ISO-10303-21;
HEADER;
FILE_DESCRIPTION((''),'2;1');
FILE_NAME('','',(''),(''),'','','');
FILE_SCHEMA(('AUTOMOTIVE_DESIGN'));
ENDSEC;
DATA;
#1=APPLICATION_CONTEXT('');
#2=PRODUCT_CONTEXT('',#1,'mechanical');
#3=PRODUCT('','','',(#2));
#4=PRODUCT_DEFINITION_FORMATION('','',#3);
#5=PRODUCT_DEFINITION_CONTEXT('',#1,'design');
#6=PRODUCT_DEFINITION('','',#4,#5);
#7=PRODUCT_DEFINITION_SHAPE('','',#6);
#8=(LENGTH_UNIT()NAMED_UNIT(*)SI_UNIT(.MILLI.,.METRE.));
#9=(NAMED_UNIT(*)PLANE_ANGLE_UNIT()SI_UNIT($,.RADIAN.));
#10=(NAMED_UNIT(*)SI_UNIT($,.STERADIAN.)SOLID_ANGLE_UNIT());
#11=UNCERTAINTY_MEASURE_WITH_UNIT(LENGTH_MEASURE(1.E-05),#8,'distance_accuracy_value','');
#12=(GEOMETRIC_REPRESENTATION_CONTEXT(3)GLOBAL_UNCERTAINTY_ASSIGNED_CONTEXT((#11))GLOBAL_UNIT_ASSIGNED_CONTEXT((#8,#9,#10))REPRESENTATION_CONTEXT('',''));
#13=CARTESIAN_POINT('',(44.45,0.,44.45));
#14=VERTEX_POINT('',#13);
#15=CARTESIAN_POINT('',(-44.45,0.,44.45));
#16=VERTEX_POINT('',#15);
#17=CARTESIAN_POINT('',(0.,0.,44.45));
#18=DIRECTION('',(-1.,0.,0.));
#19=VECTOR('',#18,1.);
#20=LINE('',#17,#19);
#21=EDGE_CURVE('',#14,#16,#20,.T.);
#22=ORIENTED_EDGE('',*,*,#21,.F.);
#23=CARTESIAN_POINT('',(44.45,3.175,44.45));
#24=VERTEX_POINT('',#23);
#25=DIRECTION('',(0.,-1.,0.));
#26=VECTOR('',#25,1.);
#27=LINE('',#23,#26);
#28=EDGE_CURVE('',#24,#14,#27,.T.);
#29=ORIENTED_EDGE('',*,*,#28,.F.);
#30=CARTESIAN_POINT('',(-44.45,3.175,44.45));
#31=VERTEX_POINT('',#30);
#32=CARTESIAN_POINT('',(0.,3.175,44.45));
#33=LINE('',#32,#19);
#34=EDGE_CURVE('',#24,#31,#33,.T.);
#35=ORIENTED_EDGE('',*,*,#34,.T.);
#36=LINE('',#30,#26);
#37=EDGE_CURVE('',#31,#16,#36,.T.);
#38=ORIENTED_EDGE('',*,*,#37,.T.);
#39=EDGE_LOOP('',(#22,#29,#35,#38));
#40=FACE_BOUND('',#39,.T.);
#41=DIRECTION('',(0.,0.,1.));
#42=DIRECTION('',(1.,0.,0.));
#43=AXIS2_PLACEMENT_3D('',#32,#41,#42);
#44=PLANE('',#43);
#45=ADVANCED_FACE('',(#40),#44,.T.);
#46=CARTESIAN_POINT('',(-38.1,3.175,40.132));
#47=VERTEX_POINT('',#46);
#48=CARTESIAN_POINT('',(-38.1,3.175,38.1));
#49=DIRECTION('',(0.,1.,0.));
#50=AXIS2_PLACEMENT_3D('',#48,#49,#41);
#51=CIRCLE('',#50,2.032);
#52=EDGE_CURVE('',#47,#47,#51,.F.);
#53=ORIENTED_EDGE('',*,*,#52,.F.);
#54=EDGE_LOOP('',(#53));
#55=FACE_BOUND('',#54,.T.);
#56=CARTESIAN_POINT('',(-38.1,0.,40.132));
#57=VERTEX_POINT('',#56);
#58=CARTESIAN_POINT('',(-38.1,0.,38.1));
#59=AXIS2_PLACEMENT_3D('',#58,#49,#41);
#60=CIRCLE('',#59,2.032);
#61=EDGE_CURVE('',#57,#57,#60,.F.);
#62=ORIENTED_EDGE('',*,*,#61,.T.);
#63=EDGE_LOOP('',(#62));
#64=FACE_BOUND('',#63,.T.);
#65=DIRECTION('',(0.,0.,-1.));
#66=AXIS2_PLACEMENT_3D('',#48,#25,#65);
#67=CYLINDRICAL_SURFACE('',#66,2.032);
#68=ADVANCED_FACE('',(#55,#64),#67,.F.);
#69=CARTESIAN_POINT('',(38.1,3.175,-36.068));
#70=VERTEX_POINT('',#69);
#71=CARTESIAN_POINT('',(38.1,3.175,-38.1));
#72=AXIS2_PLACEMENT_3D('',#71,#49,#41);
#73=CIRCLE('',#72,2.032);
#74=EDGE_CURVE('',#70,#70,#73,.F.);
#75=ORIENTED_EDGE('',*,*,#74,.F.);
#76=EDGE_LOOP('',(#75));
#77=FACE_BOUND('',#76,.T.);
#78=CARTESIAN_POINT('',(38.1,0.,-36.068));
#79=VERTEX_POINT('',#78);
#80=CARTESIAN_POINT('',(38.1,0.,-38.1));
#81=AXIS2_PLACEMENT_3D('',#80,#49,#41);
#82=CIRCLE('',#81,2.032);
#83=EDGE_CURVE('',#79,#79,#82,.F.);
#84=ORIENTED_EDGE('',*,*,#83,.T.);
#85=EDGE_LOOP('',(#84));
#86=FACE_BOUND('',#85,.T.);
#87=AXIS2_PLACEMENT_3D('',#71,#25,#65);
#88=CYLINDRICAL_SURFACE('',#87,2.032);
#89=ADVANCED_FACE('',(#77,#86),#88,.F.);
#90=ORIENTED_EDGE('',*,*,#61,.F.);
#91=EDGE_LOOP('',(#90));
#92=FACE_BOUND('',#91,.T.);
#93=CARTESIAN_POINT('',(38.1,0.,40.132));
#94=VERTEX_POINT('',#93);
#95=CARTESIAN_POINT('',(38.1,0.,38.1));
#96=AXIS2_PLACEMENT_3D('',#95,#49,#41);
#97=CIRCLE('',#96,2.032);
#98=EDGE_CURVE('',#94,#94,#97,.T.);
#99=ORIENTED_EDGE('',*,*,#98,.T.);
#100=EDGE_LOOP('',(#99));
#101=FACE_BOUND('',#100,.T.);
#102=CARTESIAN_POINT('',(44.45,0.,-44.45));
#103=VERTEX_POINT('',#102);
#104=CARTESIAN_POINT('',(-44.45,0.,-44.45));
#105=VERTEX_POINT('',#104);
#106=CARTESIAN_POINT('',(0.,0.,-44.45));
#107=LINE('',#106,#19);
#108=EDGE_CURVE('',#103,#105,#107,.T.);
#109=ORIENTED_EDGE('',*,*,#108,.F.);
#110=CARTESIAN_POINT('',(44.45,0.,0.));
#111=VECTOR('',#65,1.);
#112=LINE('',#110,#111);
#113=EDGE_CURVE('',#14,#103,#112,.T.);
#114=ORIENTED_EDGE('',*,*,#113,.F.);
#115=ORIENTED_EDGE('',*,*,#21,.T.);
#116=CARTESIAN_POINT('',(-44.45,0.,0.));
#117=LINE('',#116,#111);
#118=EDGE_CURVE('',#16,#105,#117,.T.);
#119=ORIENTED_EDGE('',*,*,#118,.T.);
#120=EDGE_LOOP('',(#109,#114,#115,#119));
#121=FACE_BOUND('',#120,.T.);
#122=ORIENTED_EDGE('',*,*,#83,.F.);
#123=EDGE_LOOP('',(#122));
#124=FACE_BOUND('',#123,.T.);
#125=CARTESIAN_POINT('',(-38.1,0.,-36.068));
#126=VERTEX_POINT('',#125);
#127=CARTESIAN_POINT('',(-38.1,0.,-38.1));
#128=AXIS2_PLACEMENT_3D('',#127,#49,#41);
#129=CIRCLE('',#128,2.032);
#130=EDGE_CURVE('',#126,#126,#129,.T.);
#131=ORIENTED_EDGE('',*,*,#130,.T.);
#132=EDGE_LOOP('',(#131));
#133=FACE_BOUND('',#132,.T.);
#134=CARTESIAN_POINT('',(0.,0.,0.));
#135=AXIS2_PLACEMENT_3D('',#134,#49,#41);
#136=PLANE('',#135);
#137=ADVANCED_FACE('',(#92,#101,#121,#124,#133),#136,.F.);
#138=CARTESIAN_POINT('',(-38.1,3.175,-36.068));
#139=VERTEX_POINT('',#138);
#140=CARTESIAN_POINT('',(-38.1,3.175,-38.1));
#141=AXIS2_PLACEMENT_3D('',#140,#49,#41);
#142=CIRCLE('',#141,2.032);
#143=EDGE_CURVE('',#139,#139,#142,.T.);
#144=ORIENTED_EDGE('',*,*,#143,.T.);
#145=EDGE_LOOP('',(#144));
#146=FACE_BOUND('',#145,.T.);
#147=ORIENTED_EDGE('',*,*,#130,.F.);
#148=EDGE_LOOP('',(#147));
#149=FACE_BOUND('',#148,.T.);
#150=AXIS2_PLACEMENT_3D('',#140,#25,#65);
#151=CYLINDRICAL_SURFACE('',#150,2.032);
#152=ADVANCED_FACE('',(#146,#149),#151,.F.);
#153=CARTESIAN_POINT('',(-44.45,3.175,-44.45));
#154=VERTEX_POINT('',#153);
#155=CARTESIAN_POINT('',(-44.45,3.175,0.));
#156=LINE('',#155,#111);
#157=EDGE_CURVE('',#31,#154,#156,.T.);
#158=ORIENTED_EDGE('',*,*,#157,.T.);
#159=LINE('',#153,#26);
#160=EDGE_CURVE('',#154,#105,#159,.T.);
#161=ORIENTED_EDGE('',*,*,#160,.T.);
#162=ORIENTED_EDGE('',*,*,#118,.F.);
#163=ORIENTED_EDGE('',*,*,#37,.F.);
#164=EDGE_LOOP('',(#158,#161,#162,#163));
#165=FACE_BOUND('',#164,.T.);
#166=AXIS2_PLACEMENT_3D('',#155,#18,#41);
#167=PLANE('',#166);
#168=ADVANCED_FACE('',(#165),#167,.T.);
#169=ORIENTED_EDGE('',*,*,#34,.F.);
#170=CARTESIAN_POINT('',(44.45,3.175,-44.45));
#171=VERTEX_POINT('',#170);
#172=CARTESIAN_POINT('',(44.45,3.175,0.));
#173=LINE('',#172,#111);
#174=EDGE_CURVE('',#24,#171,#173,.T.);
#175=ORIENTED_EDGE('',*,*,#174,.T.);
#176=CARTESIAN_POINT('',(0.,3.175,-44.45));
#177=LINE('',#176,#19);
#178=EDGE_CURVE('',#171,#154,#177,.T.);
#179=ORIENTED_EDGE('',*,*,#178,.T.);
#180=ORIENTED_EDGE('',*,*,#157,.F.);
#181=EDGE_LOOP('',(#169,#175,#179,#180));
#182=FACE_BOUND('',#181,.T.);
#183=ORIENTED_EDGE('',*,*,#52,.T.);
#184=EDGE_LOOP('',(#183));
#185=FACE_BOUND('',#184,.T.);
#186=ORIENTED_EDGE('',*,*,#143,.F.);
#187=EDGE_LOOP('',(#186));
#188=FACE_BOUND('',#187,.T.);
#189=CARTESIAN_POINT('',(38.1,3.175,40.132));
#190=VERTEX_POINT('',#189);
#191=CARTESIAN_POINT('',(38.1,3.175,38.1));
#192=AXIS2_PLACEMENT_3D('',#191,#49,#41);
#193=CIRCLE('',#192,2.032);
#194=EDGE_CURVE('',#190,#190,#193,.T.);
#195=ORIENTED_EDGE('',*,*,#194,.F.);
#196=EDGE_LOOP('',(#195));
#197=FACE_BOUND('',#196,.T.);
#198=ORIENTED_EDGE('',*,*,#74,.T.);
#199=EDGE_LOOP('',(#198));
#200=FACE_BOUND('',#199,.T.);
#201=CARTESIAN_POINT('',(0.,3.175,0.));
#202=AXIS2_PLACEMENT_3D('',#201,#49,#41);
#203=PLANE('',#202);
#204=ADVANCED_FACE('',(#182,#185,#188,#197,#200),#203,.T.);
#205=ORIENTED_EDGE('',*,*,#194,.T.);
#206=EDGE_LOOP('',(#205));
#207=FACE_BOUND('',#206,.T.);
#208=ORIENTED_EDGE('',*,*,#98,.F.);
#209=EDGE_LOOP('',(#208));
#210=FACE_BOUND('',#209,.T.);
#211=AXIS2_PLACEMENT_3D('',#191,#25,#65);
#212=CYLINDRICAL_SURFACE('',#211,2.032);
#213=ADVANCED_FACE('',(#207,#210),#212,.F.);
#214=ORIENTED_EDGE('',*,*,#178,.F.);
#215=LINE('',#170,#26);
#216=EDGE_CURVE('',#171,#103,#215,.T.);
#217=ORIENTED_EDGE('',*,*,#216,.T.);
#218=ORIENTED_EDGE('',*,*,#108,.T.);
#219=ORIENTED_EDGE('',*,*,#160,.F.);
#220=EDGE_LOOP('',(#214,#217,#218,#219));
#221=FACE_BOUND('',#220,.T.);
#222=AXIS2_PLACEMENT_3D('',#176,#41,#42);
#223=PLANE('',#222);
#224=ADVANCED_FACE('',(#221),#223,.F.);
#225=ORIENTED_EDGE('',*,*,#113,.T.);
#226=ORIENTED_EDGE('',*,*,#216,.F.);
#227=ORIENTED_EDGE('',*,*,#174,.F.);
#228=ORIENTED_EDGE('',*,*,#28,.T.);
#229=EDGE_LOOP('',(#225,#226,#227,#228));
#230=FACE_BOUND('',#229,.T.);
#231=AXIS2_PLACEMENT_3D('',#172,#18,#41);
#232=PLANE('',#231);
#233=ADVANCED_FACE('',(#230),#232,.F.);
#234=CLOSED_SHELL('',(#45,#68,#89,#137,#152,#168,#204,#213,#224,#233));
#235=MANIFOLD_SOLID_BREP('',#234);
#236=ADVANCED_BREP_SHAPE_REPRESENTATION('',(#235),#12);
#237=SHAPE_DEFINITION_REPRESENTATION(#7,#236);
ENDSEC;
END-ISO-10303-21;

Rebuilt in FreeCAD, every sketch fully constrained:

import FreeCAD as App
import Part
import Sketcher

V = App.Vector
Q = App.Units.Quantity

doc = App.newDocument("Part")
body = doc.addObject("PartDesign::Body", "Body")

sketch1 = body.newObject("Sketcher::SketchObject", "Sketch")
sketch1.AttachmentSupport = (doc.getObject("XZ_Plane"), [""])
sketch1.MapMode = "FlatFace"
sketch1.addGeometry([
    Part.LineSegment(V(-44.5, -44.5, 0), V(-44.5, 44.5, 0)),
    Part.LineSegment(V(-44.5, 44.5, 0), V(44.5, 44.5, 0)),
    Part.LineSegment(V(44.5, 44.5, 0), V(44.5, -44.5, 0)),
    Part.LineSegment(V(44.5, -44.5, 0), V(-44.5, -44.5, 0)),
    Part.Circle(V(-38.1, 38.1, 0), V(0, 0, 1), 2),
    Part.Circle(V(38.1, 38.1, 0), V(0, 0, 1), 2),
    Part.Circle(V(-38.1, -38.1, 0), V(0, 0, 1), 2),
    Part.Circle(V(38.1, -38.1, 0), V(0, 0, 1), 2),
], False)
sketch1.addConstraint([
    Sketcher.Constraint("Coincident", 0, 2, 1, 1),
    Sketcher.Constraint("Coincident", 1, 2, 2, 1),
    Sketcher.Constraint("Coincident", 2, 2, 3, 1),
    Sketcher.Constraint("Coincident", 3, 2, 0, 1),
    Sketcher.Constraint("Vertical", 0),
    Sketcher.Constraint("Horizontal", 1),
    Sketcher.Constraint("Vertical", 2),
    Sketcher.Constraint("Horizontal", 3),
    Sketcher.Constraint("Equal", 4, 5),
    Sketcher.Constraint("Equal", 5, 6),
    Sketcher.Constraint("Equal", 6, 7),
    Sketcher.Constraint("Symmetric", 5, 3, 6, 3, -1, 1),
    Sketcher.Constraint("Symmetric", 4, 3, 7, 3, -1, 1),
    Sketcher.Constraint("Symmetric", 0, 2, 2, 2, -1, 1),
    Sketcher.Constraint("Symmetric", 4, 3, 5, 3, -2),
    Sketcher.Constraint("Equal", 3, 0),
    Sketcher.Constraint("Diameter", 4, Q("0.16 in")),
    Sketcher.Constraint("DistanceX", 1, 1, 1, 2, Q("3.5 in")),
    Sketcher.Constraint("DistanceX", 4, 3, 5, 3, Q("3 in")),
    Sketcher.Constraint("DistanceY", 6, 3, 4, 3, Q("3 in")),
])
pad1 = body.newObject("PartDesign::Pad", "Pad")
pad1.Profile = sketch1
pad1.Length = Q("0.125 in")
pad1.Reversed = True

doc.recompute()
